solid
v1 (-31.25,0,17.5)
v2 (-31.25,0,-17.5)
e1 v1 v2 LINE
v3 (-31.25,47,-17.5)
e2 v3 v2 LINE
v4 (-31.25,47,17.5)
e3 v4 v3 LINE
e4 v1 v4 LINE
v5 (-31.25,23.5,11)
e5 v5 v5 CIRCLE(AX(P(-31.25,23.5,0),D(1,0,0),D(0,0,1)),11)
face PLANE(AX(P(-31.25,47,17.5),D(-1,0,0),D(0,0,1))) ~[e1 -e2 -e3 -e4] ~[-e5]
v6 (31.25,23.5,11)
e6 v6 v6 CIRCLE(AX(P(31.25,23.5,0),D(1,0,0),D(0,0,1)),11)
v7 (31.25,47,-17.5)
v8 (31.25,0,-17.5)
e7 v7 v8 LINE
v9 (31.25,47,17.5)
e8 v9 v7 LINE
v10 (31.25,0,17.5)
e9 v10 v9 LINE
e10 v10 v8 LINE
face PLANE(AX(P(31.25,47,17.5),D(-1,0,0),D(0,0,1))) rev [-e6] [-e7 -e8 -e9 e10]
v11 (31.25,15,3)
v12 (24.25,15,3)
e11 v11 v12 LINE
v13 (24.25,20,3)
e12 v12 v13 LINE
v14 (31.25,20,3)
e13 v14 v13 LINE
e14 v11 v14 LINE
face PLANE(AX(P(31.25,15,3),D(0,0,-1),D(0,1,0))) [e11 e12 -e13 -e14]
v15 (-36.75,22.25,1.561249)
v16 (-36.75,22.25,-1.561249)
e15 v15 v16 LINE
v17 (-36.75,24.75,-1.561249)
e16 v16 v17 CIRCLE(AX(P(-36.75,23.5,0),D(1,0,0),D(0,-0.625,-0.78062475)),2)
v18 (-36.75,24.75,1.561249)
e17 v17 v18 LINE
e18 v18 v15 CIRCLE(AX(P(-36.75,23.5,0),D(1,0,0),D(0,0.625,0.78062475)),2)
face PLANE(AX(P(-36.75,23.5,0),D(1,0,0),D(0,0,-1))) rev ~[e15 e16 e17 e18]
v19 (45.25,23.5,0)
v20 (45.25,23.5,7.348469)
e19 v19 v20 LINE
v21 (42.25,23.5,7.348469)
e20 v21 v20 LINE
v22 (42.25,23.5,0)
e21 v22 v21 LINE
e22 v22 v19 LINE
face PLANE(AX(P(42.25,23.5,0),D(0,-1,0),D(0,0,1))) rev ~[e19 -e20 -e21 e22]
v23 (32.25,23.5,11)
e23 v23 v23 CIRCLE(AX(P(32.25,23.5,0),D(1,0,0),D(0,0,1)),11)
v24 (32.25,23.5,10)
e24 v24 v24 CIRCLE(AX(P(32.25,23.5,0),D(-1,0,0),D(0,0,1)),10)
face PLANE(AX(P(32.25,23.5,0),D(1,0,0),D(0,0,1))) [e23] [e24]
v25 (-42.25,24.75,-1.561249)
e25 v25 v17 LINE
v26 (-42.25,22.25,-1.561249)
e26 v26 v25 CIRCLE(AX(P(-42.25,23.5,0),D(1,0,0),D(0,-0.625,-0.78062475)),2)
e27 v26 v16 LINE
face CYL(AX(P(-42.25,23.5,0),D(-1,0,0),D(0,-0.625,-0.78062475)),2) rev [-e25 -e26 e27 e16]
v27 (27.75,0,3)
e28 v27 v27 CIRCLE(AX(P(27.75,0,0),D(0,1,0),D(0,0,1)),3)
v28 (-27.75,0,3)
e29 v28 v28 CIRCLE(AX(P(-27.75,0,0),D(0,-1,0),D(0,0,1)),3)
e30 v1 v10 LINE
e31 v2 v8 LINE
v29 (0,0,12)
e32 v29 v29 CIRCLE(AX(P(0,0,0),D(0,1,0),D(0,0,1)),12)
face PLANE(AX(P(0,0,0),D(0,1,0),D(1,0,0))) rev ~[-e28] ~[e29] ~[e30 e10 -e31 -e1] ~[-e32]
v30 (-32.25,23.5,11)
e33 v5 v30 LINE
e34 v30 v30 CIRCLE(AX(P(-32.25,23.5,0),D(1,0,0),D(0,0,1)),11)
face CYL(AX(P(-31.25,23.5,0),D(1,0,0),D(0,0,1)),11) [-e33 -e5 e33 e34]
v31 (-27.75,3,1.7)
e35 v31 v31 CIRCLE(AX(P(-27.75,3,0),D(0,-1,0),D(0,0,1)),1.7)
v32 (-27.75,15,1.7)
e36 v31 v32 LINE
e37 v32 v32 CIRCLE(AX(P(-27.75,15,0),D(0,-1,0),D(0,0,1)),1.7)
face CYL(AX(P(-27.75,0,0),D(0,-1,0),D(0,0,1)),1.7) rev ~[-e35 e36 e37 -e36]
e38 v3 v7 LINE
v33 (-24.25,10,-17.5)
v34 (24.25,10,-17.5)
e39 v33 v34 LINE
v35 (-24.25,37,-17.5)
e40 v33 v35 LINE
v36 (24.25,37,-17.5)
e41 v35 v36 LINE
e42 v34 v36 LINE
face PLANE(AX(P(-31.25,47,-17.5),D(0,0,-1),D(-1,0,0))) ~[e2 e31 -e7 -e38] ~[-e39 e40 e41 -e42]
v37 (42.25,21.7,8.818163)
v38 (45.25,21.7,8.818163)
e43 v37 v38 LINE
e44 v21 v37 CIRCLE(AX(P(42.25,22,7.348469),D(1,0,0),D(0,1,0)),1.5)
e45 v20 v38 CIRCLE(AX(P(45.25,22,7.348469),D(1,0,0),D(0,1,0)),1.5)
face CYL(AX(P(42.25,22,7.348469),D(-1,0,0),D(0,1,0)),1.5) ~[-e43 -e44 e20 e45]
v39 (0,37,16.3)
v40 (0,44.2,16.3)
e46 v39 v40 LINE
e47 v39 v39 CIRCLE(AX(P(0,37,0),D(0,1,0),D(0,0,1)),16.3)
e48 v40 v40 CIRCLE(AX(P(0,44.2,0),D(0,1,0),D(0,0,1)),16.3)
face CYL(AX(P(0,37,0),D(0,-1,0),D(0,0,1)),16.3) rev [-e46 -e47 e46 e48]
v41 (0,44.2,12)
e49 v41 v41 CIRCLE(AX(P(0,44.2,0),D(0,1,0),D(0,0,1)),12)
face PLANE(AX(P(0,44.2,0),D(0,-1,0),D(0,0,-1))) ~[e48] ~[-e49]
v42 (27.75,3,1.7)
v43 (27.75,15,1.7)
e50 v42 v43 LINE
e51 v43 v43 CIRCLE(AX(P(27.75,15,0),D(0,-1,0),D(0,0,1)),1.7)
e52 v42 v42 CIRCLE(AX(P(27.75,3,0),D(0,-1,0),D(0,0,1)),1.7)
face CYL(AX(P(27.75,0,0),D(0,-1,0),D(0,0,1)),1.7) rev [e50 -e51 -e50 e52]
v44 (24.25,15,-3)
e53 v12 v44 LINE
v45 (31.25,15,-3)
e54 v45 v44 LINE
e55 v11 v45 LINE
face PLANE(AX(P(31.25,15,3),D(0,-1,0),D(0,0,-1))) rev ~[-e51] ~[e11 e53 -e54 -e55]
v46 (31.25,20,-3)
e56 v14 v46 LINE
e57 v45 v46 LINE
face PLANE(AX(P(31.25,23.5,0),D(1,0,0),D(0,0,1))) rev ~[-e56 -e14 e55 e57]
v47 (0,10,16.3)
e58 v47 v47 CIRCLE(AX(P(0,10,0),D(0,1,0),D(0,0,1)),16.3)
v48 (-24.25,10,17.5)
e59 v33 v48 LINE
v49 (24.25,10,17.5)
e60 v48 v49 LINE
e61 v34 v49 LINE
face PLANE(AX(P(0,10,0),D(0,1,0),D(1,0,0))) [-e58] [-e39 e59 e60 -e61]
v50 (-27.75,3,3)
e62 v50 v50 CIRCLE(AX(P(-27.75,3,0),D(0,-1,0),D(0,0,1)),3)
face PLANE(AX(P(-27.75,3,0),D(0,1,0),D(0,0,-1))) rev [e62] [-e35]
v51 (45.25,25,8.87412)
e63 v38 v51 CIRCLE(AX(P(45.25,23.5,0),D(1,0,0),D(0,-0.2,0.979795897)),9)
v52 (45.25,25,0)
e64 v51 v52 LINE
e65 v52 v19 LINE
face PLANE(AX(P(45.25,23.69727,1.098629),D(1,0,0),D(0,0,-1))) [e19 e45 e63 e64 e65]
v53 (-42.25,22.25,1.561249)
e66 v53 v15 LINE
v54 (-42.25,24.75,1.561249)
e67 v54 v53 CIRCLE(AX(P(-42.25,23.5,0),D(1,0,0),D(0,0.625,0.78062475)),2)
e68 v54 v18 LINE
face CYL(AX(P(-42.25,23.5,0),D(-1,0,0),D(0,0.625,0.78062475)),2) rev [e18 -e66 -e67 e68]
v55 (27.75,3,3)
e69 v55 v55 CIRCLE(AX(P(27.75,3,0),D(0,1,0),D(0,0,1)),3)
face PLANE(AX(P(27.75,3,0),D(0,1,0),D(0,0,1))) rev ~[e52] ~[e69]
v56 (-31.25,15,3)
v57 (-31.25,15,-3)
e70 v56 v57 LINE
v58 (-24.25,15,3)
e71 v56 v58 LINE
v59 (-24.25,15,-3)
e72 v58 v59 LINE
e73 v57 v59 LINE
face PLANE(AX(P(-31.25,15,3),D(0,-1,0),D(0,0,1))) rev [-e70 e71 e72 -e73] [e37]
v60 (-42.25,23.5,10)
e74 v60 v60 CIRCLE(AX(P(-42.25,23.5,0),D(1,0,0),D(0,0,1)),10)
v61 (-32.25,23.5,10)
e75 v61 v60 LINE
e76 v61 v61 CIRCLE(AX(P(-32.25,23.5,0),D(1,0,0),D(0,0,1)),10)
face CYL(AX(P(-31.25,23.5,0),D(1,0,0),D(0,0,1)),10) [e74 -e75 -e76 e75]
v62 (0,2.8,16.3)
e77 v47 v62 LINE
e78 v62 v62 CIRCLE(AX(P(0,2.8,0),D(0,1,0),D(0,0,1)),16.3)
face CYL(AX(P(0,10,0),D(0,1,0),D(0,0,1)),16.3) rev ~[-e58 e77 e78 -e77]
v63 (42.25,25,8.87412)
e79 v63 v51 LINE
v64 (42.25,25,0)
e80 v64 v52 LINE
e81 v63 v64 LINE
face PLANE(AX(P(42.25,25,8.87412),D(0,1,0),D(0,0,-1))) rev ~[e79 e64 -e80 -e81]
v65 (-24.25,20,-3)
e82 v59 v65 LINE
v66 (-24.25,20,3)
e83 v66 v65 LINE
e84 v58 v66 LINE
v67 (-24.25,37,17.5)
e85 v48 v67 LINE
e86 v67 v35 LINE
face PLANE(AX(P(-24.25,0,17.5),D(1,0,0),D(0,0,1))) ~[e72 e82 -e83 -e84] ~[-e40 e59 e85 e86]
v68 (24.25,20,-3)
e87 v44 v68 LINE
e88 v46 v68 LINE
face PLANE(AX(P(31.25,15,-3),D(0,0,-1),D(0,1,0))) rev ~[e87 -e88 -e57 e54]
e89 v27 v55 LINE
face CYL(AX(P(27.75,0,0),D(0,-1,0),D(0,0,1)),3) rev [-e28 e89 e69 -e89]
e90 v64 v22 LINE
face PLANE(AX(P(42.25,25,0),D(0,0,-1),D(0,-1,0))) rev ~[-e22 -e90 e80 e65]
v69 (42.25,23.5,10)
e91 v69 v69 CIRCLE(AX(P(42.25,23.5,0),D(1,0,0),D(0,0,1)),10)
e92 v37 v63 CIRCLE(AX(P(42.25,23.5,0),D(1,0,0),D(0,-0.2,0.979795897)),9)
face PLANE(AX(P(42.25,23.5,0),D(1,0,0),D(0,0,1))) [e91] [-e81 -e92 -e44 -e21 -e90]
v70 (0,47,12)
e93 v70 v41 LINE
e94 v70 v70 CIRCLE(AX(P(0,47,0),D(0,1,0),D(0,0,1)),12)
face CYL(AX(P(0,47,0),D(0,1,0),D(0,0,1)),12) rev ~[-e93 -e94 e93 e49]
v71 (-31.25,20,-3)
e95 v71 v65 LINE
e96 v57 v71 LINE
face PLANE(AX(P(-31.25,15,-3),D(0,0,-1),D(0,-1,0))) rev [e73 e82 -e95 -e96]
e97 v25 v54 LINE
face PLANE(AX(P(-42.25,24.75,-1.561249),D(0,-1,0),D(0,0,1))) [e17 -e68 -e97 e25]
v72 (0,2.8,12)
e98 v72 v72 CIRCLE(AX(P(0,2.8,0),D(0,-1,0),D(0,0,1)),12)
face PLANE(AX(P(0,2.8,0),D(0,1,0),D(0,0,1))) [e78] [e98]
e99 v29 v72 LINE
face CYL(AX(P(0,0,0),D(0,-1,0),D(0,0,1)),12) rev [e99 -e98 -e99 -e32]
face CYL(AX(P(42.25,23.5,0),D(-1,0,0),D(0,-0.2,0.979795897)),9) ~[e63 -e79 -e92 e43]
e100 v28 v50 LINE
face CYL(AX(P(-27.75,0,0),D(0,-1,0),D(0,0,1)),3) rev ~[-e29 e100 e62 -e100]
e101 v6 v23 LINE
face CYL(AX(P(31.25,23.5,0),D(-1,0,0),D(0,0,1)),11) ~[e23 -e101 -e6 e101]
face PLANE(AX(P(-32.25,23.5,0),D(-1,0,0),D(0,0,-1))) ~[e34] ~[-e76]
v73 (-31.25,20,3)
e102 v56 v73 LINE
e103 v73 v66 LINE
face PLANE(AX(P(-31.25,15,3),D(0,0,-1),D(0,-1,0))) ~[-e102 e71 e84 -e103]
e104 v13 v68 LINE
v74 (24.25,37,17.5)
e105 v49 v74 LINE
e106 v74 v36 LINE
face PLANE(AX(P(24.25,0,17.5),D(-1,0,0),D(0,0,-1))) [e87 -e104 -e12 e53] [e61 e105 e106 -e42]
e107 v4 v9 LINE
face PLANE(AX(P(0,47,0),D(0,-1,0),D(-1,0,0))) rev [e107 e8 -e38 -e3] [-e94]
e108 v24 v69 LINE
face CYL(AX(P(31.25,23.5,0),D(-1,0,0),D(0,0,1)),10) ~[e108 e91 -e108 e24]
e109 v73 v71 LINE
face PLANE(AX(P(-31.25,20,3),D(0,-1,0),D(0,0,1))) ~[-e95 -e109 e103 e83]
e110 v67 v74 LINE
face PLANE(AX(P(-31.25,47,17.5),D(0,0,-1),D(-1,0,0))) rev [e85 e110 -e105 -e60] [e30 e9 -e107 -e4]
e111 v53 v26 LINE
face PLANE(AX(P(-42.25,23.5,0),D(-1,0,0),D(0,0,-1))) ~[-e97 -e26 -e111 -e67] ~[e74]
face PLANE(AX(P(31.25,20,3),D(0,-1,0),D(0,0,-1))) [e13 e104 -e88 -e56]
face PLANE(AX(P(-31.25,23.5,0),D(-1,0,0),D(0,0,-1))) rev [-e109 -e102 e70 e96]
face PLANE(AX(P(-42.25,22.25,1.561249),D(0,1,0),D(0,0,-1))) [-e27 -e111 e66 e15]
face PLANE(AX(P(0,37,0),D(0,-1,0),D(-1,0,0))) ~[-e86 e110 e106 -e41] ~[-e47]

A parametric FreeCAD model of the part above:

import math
import FreeCAD as App
import Part
import Sketcher


def add_polygon(sketch, points):
    """Adds a closed chain of lines whose ends are joined by coincident constraints."""
    first, n = sketch.GeometryCount, len(points)
    for a, b in zip(points, points[1:] + points[:1]):
        sketch.addGeometry(Part.LineSegment(App.Vector(*a, 0), App.Vector(*b, 0)), False)
    for i in range(n):
        sketch.addConstraint(Sketcher.Constraint("Coincident", first + i, 2, first + (i + 1) % n, 1))

doc = App.newDocument("Part")
body = doc.addObject("PartDesign::Body", "Body")

# Sketch on XZ plane
sketch1 = body.newObject("Sketcher::SketchObject", "Sketch")
sketch1.AttachmentSupport = (doc.getObject("XZ_Plane"), [""])
sketch1.MapMode = "FlatFace"
add_polygon(sketch1, [(-31, -18), (-31, 18), (31, 18), (31, -18)])  # lines 0-3
sketch1.addGeometry(Part.Circle(App.Vector(0, 0, 0), App.Vector(0, 0, 1), 12), False)  # 4
sketch1.addConstraint([
    Sketcher.Constraint("Vertical", 0),
    Sketcher.Constraint("Horizontal", 1),
    Sketcher.Constraint("Vertical", 2),
    Sketcher.Constraint("Horizontal", 3),
    Sketcher.Constraint("Coincident", 4, 3, -1, 1),
    Sketcher.Constraint("Symmetric", 0, 2, 2, 2, -1, 1),
    Sketcher.Constraint("Diameter", 4, 24.0),
    Sketcher.Constraint("DistanceY", 0, 1, 0, 2, 35.0),
    Sketcher.Constraint("DistanceX", 1, 1, 1, 2, 62.5),
])
pad1 = body.newObject("PartDesign::Pad", "Pad")
pad1.Profile = sketch1
pad1.Length = 10
pad1.Reversed = True

# Sketch on XZ plane
sketch2 = body.newObject("Sketcher::SketchObject", "Sketch001")
sketch2.AttachmentSupport = (doc.getObject("XZ_Plane"), [""])
sketch2.MapMode = "FlatFace"
sketch2.AttachmentOffset = App.Placement(App.Vector(0, 0, -10), App.Rotation())
sketch2.addGeometry(Part.Circle(App.Vector(0, 0, 0), App.Vector(0, 0, 1), 16), False)
sketch2.addConstraint([
    Sketcher.Constraint("Coincident", 0, 3, -1, 1),
    Sketcher.Constraint("Diameter", 0, 32.6),
])
pocket1 = body.newObject("PartDesign::Pocket", "Pocket")
pocket1.Profile = sketch2
pocket1.Length = 7.2
pocket1.Reversed = True

# Sketch on XZ plane
sketch3 = body.newObject("Sketcher::SketchObject", "Sketch002")
sketch3.AttachmentSupport = (doc.getObject("XZ_Plane"), [""])
sketch3.MapMode = "FlatFace"
add_polygon(sketch3, [(24, -18), (24, 18), (31, 18), (31, -18)])  # lines 0-3
sketch3.addConstraint([
    Sketcher.Constraint("Vertical", 0),
    Sketcher.Constraint("Horizontal", 1),
    Sketcher.Constraint("Vertical", 2),
    Sketcher.Constraint("Horizontal", 3),
    Sketcher.Constraint("DistanceX", 1, 1, 1, 2, 7.0),
    Sketcher.Constraint("DistanceY", 0, 1, 0, 2, 35.0),
    Sketcher.Constraint("DistanceY", -1, 1, 0, 2, 17.5),
    Sketcher.Constraint("DistanceX", -1, 1, 0, 2, 24.25),
])
pad2 = body.newObject("PartDesign::Pad", "Pad001")
pad2.Profile = sketch3
pad2.Length = 37
pad2.Reversed = True

# Sketch on XZ plane
sketch4 = body.newObject("Sketcher::SketchObject", "Sketch003")
sketch4.AttachmentSupport = (doc.getObject("XZ_Plane"), [""])
sketch4.MapMode = "FlatFace"
sketch4.addGeometry(Part.Circle(App.Vector(27.8, 0, 0), App.Vector(0, 0, 1), 3), False)
sketch4.addConstraint([
    Sketcher.Constraint("PointOnObject", 0, 3, -1),
    Sketcher.Constraint("Diameter", 0, 6.0),
    Sketcher.Constraint("DistanceX", -1, 1, 0, 3, 27.75),
])
pocket2 = body.newObject("PartDesign::Pocket", "Pocket001")
pocket2.Profile = sketch4
pocket2.Length = 3

# Sketch on XZ plane
sketch5 = body.newObject("Sketcher::SketchObject", "Sketch004")
sketch5.AttachmentSupport = (doc.getObject("XZ_Plane"), [""])
sketch5.MapMode = "FlatFace"
sketch5.addGeometry(Part.Circle(App.Vector(27.8, 0, 0), App.Vector(0, 0, 1), 1.7), False)
sketch5.addConstraint([
    Sketcher.Constraint("PointOnObject", 0, 3, -1),
    Sketcher.Constraint("Diameter", 0, 3.4),
    Sketcher.Constraint("DistanceX", -1, 1, 0, 3, 27.75),
])
pocket3 = body.newObject("PartDesign::Pocket", "Pocket002")
pocket3.Profile = sketch5
pocket3.Length = 20

# Sketch on YZ plane
sketch6 = body.newObject("Sketcher::SketchObject", "Sketch005")
sketch6.AttachmentSupport = (doc.getObject("YZ_Plane"), [""])
sketch6.MapMode = "FlatFace"
sketch6.AttachmentOffset = App.Placement(App.Vector(0, 0, 31.25), App.Rotation())
add_polygon(sketch6, [(20, 3), (15, 3), (15, -3), (20, -3)])  # lines 0-3
sketch6.addConstraint([
    Sketcher.Constraint("Horizontal", 0),
    Sketcher.Constraint("Vertical", 1),
    Sketcher.Constraint("Horizontal", 2),
    Sketcher.Constraint("Vertical", 3),
    Sketcher.Constraint("DistanceX", 0, 2, 0, 1, 5.0),
    Sketcher.Constraint("DistanceY", 1, 2, 1, 1, 6.0),
    Sketcher.Constraint("DistanceX", -1, 1, 0, 2, 15.0),
    Sketcher.Constraint("DistanceY", -1, 1, 0, 2, 3.0),
])
pocket4 = body.newObject("PartDesign::Pocket", "Pocket003")
pocket4.Profile = sketch6
pocket4.Length = 7
doc.recompute()

mirrored = body.newObject("PartDesign::Mirrored", "Mirrored")
mirrored.Originals = [pad2, pocket2, pocket3, pocket4]
mirrored.MirrorPlane = (doc.getObject("YZ_Plane"), [""])
body.Tip = mirrored
doc.recompute()

datumplane = body.newObject("PartDesign::Plane", "DatumPlane")
datumplane.AttachmentSupport = (doc.getObject("XZ_Plane"), [""])
datumplane.MapMode = "FlatFace"
datumplane.AttachmentOffset = App.Placement(App.Vector(0, 0, -23.5), App.Rotation())
mirrored2 = body.newObject("PartDesign::Mirrored", "Mirrored001")
mirrored2.Originals = [pad1, pocket1]
mirrored2.MirrorPlane = (datumplane, [""])
body.Tip = mirrored2

# Sketch on YZ plane
sketch7 = body.newObject("Sketcher::SketchObject", "Sketch006")
sketch7.AttachmentSupport = (doc.getObject("YZ_Plane"), [""])
sketch7.MapMode = "FlatFace"
sketch7.AttachmentOffset = App.Placement(App.Vector(0, 0, 31.25), App.Rotation())
sketch7.addGeometry(Part.Circle(App.Vector(24, 0, 0), App.Vector(0, 0, 1), 10), False)
sketch7.addConstraint([
    Sketcher.Constraint("PointOnObject", 0, 3, -1),
    Sketcher.Constraint("Diameter", 0, 20.0),
    Sketcher.Constraint("DistanceX", -1, 1, 0, 3, 23.5),
])
pad3 = body.newObject("PartDesign::Pad", "Pad002")
pad3.Profile = sketch7
pad3.Length = 11

# Sketch on YZ plane
sketch8 = body.newObject("Sketcher::SketchObject", "Sketch007")
sketch8.AttachmentSupport = (doc.getObject("YZ_Plane"), [""])
sketch8.MapMode = "FlatFace"
sketch8.AttachmentOffset = App.Placement(App.Vector(0, 0, 31.25), App.Rotation())
sketch8.addGeometry(Part.Circle(App.Vector(24, 0, 0), App.Vector(0, 0, 1), 11), False)
sketch8.addConstraint([
    Sketcher.Constraint("PointOnObject", 0, 3, -1),
    Sketcher.Constraint("Diameter", 0, 22.0),
    Sketcher.Constraint("DistanceX", -1, 1, 0, 3, 23.5),
])
pad4 = body.newObject("PartDesign::Pad", "Pad003")
pad4.Profile = sketch8
pad4.Length = 1
doc.recompute()

mirrored3 = body.newObject("PartDesign::Mirrored", "Mirrored002")
mirrored3.Originals = [pad3, pad4]
mirrored3.MirrorPlane = (doc.getObject("YZ_Plane"), [""])
body.Tip = mirrored3

# Sketch on YZ plane
sketch9 = body.newObject("Sketcher::SketchObject", "Sketch008")
sketch9.AttachmentSupport = (doc.getObject("YZ_Plane"), [""])
sketch9.MapMode = "FlatFace"
sketch9.AttachmentOffset = App.Placement(App.Vector(0, 0, 42.25), App.Rotation())
sketch9.addGeometry([
    Part.LineSegment(App.Vector(23.5, 0, 0), App.Vector(23.5, 7.3, 0)),  # 0
    Part.ArcOfCircle(Part.Circle(App.Vector(22, 7.3, 0), App.Vector(0, 0, 1), 1.5), math.radians(0), math.radians(102)),  # 1
    Part.ArcOfCircle(Part.Circle(App.Vector(23.5, 0, 0), App.Vector(0, 0, 1), 9), math.radians(102), math.radians(440)),  # 2
    Part.LineSegment(App.Vector(25, 8.9, 0), App.Vector(25, 0, 0)),  # 3
    Part.LineSegment(App.Vector(25, 0, 0), App.Vector(23.5, 0, 0)),  # 4
], False)
sketch9.addConstraint([
    Sketcher.Constraint("Tangent", 0, 2, 1, 1),
    Sketcher.Constraint("Tangent", 1, 2, 2, 1),
    Sketcher.Constraint("Coincident", 2, 2, 3, 1),
    Sketcher.Constraint("Coincident", 3, 2, 4, 1),
    Sketcher.Constraint("Coincident", 4, 2, 0, 1),
    Sketcher.Constraint("Vertical", 0),
    Sketcher.Constraint("Vertical", 3),
    Sketcher.Constraint("Horizontal", 4),
    Sketcher.Constraint("Coincident", 4, 2, 2, 3),
    Sketcher.Constraint("PointOnObject", 2, 3, -1),
    Sketcher.Constraint("Radius", 2, 9.0),
    Sketcher.Constraint("Radius", 1, 1.5),
    Sketcher.Constraint("DistanceX", 4, 2, 4, 1, 1.5),
    Sketcher.Constraint("DistanceX", -1, 1, 1, 3, 22.0),
])
pad5 = body.newObject("PartDesign::Pad", "Pad004")
pad5.Profile = sketch9
pad5.Length = 3

# Sketch on YZ plane
sketch10 = body.newObject("Sketcher::SketchObject", "Sketch009")
sketch10.AttachmentSupport = (doc.getObject("YZ_Plane"), [""])
sketch10.MapMode = "FlatFace"
sketch10.AttachmentOffset = App.Placement(App.Vector(0, 0, -42.25), App.Rotation())
sketch10.addGeometry([
    Part.LineSegment(App.Vector(24.8, 1.6, 0), App.Vector(24.8, -1.6, 0)),
    Part.ArcOfCircle(Part.Circle(App.Vector(23.5, 0, 0), App.Vector(0, 0, 1), 2), math.radians(-129), math.radians(-51)),
    Part.LineSegment(App.Vector(22.2, -1.6, 0), App.Vector(22.2, 1.6, 0)),
    Part.ArcOfCircle(Part.Circle(App.Vector(23.5, 0, 0), App.Vector(0, 0, 1), 2), math.radians(51), math.radians(129)),
], False)
sketch10.addConstraint([
    Sketcher.Constraint("Coincident", 0, 2, 1, 2),
    Sketcher.Constraint("Coincident", 1, 1, 2, 1),
    Sketcher.Constraint("Coincident", 2, 2, 3, 2),
    Sketcher.Constraint("Coincident", 3, 1, 0, 1),
    Sketcher.Constraint("Vertical", 0),
    Sketcher.Constraint("Vertical", 2),
    Sketcher.Constraint("Coincident", 3, 3, 1, 3),
    Sketcher.Constraint("Equal", 1, 3),
    Sketcher.Constraint("PointOnObject", 1, 3, -1),
    Sketcher.Constraint("Horizontal", 0, 2, 1, 1),
    Sketcher.Constraint("Radius", 1, 2.0),
    Sketcher.Constraint("DistanceX", -1, 1, 1, 3, 23.5),
    Sketcher.Constraint("DistanceX", 1, 1, 0, 2, 2.5),
])
pocket5 = body.newObject("PartDesign::Pocket", "Pocket004")
pocket5.Profile = sketch10
pocket5.Length = 5.5
pocket5.Reversed = True

doc.recompute()
